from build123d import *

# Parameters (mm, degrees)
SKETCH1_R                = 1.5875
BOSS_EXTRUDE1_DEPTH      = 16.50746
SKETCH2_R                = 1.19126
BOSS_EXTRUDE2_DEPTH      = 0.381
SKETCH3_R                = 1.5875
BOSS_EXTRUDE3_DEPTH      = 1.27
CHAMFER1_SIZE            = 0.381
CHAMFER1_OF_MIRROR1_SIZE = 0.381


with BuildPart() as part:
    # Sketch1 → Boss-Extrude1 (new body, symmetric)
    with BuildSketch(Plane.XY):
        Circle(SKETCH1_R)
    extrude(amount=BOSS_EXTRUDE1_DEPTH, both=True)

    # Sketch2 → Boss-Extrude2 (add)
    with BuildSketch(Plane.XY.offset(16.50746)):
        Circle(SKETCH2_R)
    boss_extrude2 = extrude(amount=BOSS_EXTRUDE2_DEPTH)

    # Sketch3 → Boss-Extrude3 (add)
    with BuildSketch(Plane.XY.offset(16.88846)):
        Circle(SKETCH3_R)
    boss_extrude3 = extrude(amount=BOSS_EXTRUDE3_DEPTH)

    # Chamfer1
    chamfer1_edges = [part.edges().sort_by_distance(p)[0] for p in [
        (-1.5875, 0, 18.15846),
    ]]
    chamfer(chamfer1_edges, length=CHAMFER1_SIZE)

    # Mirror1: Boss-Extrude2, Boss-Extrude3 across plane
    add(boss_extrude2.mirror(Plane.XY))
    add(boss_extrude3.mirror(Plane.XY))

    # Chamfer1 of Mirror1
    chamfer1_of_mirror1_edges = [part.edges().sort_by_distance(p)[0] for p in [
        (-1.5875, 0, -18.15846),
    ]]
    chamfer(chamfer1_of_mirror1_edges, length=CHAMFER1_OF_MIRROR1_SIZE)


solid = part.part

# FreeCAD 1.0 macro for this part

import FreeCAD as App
import Part
import Sketcher
Q = App.Units.Quantity


def edges_at(feature, points):
    """Names of the edges that pass closest to the given points."""
    edges = feature.Shape.Edges
    near = lambda p: min(range(len(edges)), key=lambda i: edges[i].distToShape(Part.Vertex(*p))[0])
    return sorted({f"Edge{near(p) + 1}" for p in points})

doc = App.newDocument("Part")
body = doc.addObject("PartDesign::Body", "Body")

# Sketch on XY plane
sketch1 = body.newObject("Sketcher::SketchObject", "Sketch")
sketch1.AttachmentSupport = (doc.getObject("XY_Plane"), [""])
sketch1.MapMode = "FlatFace"
sketch1.addGeometry(Part.Circle(App.Vector(0, 0, 0), App.Vector(0, 0, 1), 1.6), False)
sketch1.addConstraint([
    Sketcher.Constraint("Coincident", 0, 3, -1, 1),
    Sketcher.Constraint("Diameter", 0, Q("0.125 in")),
])
pad1 = body.newObject("PartDesign::Pad", "Pad")
pad1.Profile = sketch1
pad1.Length = Q("1.2998 in")
pad1.Midplane = True

# Sketch on XY plane
sketch2 = body.newObject("Sketcher::SketchObject", "Sketch001")
sketch2.AttachmentSupport = (doc.getObject("XY_Plane"), [""])
sketch2.MapMode = "FlatFace"
sketch2.AttachmentOffset = App.Placement(App.Vector(0, 0, 0.6499 * 25.4), App.Rotation())
sketch2.addGeometry(Part.Circle(App.Vector(0, 0, 0), App.Vector(0, 0, 1), 1.2), False)
sketch2.addConstraint([
    Sketcher.Constraint("Coincident", 0, 3, -1, 1),
    Sketcher.Constraint("Diameter", 0, Q("0.0938 in")),
])
pad2 = body.newObject("PartDesign::Pad", "Pad001")
pad2.Profile = sketch2
pad2.Length = Q("0.015 in")

# Sketch on XY plane
sketch3 = body.newObject("Sketcher::SketchObject", "Sketch002")
sketch3.AttachmentSupport = (doc.getObject("XY_Plane"), [""])
sketch3.MapMode = "FlatFace"
sketch3.AttachmentOffset = App.Placement(App.Vector(0, 0, 0.6649 * 25.4), App.Rotation())
sketch3.addGeometry(Part.Circle(App.Vector(0, 0, 0), App.Vector(0, 0, 1), 1.6), False)
sketch3.addConstraint([
    Sketcher.Constraint("Coincident", 0, 3, -1, 1),
    Sketcher.Constraint("Diameter", 0, Q("0.125 in")),
])
pad3 = body.newObject("PartDesign::Pad", "Pad002")
pad3.Profile = sketch3
pad3.Length = Q("0.05 in")
doc.recompute()

chamfer = body.newObject("PartDesign::Chamfer", "Chamfer")
chamfer.Base = (pad3, edges_at(pad3, [(-1.587, 0, 18.158)]))
chamfer.Size = Q("0.015 in")
doc.recompute()

mirrored = body.newObject("PartDesign::Mirrored", "Mirrored")
mirrored.Originals = [pad2, pad3]
mirrored.MirrorPlane = (doc.getObject("XY_Plane"), [""])
body.Tip = mirrored
doc.recompute()

chamfer2 = body.newObject("PartDesign::Chamfer", "Chamfer001")
chamfer2.Base = (mirrored, edges_at(mirrored, [(-1.587, 0, -18.158)]))
chamfer2.Size = Q("0.015 in")

doc.recompute()
